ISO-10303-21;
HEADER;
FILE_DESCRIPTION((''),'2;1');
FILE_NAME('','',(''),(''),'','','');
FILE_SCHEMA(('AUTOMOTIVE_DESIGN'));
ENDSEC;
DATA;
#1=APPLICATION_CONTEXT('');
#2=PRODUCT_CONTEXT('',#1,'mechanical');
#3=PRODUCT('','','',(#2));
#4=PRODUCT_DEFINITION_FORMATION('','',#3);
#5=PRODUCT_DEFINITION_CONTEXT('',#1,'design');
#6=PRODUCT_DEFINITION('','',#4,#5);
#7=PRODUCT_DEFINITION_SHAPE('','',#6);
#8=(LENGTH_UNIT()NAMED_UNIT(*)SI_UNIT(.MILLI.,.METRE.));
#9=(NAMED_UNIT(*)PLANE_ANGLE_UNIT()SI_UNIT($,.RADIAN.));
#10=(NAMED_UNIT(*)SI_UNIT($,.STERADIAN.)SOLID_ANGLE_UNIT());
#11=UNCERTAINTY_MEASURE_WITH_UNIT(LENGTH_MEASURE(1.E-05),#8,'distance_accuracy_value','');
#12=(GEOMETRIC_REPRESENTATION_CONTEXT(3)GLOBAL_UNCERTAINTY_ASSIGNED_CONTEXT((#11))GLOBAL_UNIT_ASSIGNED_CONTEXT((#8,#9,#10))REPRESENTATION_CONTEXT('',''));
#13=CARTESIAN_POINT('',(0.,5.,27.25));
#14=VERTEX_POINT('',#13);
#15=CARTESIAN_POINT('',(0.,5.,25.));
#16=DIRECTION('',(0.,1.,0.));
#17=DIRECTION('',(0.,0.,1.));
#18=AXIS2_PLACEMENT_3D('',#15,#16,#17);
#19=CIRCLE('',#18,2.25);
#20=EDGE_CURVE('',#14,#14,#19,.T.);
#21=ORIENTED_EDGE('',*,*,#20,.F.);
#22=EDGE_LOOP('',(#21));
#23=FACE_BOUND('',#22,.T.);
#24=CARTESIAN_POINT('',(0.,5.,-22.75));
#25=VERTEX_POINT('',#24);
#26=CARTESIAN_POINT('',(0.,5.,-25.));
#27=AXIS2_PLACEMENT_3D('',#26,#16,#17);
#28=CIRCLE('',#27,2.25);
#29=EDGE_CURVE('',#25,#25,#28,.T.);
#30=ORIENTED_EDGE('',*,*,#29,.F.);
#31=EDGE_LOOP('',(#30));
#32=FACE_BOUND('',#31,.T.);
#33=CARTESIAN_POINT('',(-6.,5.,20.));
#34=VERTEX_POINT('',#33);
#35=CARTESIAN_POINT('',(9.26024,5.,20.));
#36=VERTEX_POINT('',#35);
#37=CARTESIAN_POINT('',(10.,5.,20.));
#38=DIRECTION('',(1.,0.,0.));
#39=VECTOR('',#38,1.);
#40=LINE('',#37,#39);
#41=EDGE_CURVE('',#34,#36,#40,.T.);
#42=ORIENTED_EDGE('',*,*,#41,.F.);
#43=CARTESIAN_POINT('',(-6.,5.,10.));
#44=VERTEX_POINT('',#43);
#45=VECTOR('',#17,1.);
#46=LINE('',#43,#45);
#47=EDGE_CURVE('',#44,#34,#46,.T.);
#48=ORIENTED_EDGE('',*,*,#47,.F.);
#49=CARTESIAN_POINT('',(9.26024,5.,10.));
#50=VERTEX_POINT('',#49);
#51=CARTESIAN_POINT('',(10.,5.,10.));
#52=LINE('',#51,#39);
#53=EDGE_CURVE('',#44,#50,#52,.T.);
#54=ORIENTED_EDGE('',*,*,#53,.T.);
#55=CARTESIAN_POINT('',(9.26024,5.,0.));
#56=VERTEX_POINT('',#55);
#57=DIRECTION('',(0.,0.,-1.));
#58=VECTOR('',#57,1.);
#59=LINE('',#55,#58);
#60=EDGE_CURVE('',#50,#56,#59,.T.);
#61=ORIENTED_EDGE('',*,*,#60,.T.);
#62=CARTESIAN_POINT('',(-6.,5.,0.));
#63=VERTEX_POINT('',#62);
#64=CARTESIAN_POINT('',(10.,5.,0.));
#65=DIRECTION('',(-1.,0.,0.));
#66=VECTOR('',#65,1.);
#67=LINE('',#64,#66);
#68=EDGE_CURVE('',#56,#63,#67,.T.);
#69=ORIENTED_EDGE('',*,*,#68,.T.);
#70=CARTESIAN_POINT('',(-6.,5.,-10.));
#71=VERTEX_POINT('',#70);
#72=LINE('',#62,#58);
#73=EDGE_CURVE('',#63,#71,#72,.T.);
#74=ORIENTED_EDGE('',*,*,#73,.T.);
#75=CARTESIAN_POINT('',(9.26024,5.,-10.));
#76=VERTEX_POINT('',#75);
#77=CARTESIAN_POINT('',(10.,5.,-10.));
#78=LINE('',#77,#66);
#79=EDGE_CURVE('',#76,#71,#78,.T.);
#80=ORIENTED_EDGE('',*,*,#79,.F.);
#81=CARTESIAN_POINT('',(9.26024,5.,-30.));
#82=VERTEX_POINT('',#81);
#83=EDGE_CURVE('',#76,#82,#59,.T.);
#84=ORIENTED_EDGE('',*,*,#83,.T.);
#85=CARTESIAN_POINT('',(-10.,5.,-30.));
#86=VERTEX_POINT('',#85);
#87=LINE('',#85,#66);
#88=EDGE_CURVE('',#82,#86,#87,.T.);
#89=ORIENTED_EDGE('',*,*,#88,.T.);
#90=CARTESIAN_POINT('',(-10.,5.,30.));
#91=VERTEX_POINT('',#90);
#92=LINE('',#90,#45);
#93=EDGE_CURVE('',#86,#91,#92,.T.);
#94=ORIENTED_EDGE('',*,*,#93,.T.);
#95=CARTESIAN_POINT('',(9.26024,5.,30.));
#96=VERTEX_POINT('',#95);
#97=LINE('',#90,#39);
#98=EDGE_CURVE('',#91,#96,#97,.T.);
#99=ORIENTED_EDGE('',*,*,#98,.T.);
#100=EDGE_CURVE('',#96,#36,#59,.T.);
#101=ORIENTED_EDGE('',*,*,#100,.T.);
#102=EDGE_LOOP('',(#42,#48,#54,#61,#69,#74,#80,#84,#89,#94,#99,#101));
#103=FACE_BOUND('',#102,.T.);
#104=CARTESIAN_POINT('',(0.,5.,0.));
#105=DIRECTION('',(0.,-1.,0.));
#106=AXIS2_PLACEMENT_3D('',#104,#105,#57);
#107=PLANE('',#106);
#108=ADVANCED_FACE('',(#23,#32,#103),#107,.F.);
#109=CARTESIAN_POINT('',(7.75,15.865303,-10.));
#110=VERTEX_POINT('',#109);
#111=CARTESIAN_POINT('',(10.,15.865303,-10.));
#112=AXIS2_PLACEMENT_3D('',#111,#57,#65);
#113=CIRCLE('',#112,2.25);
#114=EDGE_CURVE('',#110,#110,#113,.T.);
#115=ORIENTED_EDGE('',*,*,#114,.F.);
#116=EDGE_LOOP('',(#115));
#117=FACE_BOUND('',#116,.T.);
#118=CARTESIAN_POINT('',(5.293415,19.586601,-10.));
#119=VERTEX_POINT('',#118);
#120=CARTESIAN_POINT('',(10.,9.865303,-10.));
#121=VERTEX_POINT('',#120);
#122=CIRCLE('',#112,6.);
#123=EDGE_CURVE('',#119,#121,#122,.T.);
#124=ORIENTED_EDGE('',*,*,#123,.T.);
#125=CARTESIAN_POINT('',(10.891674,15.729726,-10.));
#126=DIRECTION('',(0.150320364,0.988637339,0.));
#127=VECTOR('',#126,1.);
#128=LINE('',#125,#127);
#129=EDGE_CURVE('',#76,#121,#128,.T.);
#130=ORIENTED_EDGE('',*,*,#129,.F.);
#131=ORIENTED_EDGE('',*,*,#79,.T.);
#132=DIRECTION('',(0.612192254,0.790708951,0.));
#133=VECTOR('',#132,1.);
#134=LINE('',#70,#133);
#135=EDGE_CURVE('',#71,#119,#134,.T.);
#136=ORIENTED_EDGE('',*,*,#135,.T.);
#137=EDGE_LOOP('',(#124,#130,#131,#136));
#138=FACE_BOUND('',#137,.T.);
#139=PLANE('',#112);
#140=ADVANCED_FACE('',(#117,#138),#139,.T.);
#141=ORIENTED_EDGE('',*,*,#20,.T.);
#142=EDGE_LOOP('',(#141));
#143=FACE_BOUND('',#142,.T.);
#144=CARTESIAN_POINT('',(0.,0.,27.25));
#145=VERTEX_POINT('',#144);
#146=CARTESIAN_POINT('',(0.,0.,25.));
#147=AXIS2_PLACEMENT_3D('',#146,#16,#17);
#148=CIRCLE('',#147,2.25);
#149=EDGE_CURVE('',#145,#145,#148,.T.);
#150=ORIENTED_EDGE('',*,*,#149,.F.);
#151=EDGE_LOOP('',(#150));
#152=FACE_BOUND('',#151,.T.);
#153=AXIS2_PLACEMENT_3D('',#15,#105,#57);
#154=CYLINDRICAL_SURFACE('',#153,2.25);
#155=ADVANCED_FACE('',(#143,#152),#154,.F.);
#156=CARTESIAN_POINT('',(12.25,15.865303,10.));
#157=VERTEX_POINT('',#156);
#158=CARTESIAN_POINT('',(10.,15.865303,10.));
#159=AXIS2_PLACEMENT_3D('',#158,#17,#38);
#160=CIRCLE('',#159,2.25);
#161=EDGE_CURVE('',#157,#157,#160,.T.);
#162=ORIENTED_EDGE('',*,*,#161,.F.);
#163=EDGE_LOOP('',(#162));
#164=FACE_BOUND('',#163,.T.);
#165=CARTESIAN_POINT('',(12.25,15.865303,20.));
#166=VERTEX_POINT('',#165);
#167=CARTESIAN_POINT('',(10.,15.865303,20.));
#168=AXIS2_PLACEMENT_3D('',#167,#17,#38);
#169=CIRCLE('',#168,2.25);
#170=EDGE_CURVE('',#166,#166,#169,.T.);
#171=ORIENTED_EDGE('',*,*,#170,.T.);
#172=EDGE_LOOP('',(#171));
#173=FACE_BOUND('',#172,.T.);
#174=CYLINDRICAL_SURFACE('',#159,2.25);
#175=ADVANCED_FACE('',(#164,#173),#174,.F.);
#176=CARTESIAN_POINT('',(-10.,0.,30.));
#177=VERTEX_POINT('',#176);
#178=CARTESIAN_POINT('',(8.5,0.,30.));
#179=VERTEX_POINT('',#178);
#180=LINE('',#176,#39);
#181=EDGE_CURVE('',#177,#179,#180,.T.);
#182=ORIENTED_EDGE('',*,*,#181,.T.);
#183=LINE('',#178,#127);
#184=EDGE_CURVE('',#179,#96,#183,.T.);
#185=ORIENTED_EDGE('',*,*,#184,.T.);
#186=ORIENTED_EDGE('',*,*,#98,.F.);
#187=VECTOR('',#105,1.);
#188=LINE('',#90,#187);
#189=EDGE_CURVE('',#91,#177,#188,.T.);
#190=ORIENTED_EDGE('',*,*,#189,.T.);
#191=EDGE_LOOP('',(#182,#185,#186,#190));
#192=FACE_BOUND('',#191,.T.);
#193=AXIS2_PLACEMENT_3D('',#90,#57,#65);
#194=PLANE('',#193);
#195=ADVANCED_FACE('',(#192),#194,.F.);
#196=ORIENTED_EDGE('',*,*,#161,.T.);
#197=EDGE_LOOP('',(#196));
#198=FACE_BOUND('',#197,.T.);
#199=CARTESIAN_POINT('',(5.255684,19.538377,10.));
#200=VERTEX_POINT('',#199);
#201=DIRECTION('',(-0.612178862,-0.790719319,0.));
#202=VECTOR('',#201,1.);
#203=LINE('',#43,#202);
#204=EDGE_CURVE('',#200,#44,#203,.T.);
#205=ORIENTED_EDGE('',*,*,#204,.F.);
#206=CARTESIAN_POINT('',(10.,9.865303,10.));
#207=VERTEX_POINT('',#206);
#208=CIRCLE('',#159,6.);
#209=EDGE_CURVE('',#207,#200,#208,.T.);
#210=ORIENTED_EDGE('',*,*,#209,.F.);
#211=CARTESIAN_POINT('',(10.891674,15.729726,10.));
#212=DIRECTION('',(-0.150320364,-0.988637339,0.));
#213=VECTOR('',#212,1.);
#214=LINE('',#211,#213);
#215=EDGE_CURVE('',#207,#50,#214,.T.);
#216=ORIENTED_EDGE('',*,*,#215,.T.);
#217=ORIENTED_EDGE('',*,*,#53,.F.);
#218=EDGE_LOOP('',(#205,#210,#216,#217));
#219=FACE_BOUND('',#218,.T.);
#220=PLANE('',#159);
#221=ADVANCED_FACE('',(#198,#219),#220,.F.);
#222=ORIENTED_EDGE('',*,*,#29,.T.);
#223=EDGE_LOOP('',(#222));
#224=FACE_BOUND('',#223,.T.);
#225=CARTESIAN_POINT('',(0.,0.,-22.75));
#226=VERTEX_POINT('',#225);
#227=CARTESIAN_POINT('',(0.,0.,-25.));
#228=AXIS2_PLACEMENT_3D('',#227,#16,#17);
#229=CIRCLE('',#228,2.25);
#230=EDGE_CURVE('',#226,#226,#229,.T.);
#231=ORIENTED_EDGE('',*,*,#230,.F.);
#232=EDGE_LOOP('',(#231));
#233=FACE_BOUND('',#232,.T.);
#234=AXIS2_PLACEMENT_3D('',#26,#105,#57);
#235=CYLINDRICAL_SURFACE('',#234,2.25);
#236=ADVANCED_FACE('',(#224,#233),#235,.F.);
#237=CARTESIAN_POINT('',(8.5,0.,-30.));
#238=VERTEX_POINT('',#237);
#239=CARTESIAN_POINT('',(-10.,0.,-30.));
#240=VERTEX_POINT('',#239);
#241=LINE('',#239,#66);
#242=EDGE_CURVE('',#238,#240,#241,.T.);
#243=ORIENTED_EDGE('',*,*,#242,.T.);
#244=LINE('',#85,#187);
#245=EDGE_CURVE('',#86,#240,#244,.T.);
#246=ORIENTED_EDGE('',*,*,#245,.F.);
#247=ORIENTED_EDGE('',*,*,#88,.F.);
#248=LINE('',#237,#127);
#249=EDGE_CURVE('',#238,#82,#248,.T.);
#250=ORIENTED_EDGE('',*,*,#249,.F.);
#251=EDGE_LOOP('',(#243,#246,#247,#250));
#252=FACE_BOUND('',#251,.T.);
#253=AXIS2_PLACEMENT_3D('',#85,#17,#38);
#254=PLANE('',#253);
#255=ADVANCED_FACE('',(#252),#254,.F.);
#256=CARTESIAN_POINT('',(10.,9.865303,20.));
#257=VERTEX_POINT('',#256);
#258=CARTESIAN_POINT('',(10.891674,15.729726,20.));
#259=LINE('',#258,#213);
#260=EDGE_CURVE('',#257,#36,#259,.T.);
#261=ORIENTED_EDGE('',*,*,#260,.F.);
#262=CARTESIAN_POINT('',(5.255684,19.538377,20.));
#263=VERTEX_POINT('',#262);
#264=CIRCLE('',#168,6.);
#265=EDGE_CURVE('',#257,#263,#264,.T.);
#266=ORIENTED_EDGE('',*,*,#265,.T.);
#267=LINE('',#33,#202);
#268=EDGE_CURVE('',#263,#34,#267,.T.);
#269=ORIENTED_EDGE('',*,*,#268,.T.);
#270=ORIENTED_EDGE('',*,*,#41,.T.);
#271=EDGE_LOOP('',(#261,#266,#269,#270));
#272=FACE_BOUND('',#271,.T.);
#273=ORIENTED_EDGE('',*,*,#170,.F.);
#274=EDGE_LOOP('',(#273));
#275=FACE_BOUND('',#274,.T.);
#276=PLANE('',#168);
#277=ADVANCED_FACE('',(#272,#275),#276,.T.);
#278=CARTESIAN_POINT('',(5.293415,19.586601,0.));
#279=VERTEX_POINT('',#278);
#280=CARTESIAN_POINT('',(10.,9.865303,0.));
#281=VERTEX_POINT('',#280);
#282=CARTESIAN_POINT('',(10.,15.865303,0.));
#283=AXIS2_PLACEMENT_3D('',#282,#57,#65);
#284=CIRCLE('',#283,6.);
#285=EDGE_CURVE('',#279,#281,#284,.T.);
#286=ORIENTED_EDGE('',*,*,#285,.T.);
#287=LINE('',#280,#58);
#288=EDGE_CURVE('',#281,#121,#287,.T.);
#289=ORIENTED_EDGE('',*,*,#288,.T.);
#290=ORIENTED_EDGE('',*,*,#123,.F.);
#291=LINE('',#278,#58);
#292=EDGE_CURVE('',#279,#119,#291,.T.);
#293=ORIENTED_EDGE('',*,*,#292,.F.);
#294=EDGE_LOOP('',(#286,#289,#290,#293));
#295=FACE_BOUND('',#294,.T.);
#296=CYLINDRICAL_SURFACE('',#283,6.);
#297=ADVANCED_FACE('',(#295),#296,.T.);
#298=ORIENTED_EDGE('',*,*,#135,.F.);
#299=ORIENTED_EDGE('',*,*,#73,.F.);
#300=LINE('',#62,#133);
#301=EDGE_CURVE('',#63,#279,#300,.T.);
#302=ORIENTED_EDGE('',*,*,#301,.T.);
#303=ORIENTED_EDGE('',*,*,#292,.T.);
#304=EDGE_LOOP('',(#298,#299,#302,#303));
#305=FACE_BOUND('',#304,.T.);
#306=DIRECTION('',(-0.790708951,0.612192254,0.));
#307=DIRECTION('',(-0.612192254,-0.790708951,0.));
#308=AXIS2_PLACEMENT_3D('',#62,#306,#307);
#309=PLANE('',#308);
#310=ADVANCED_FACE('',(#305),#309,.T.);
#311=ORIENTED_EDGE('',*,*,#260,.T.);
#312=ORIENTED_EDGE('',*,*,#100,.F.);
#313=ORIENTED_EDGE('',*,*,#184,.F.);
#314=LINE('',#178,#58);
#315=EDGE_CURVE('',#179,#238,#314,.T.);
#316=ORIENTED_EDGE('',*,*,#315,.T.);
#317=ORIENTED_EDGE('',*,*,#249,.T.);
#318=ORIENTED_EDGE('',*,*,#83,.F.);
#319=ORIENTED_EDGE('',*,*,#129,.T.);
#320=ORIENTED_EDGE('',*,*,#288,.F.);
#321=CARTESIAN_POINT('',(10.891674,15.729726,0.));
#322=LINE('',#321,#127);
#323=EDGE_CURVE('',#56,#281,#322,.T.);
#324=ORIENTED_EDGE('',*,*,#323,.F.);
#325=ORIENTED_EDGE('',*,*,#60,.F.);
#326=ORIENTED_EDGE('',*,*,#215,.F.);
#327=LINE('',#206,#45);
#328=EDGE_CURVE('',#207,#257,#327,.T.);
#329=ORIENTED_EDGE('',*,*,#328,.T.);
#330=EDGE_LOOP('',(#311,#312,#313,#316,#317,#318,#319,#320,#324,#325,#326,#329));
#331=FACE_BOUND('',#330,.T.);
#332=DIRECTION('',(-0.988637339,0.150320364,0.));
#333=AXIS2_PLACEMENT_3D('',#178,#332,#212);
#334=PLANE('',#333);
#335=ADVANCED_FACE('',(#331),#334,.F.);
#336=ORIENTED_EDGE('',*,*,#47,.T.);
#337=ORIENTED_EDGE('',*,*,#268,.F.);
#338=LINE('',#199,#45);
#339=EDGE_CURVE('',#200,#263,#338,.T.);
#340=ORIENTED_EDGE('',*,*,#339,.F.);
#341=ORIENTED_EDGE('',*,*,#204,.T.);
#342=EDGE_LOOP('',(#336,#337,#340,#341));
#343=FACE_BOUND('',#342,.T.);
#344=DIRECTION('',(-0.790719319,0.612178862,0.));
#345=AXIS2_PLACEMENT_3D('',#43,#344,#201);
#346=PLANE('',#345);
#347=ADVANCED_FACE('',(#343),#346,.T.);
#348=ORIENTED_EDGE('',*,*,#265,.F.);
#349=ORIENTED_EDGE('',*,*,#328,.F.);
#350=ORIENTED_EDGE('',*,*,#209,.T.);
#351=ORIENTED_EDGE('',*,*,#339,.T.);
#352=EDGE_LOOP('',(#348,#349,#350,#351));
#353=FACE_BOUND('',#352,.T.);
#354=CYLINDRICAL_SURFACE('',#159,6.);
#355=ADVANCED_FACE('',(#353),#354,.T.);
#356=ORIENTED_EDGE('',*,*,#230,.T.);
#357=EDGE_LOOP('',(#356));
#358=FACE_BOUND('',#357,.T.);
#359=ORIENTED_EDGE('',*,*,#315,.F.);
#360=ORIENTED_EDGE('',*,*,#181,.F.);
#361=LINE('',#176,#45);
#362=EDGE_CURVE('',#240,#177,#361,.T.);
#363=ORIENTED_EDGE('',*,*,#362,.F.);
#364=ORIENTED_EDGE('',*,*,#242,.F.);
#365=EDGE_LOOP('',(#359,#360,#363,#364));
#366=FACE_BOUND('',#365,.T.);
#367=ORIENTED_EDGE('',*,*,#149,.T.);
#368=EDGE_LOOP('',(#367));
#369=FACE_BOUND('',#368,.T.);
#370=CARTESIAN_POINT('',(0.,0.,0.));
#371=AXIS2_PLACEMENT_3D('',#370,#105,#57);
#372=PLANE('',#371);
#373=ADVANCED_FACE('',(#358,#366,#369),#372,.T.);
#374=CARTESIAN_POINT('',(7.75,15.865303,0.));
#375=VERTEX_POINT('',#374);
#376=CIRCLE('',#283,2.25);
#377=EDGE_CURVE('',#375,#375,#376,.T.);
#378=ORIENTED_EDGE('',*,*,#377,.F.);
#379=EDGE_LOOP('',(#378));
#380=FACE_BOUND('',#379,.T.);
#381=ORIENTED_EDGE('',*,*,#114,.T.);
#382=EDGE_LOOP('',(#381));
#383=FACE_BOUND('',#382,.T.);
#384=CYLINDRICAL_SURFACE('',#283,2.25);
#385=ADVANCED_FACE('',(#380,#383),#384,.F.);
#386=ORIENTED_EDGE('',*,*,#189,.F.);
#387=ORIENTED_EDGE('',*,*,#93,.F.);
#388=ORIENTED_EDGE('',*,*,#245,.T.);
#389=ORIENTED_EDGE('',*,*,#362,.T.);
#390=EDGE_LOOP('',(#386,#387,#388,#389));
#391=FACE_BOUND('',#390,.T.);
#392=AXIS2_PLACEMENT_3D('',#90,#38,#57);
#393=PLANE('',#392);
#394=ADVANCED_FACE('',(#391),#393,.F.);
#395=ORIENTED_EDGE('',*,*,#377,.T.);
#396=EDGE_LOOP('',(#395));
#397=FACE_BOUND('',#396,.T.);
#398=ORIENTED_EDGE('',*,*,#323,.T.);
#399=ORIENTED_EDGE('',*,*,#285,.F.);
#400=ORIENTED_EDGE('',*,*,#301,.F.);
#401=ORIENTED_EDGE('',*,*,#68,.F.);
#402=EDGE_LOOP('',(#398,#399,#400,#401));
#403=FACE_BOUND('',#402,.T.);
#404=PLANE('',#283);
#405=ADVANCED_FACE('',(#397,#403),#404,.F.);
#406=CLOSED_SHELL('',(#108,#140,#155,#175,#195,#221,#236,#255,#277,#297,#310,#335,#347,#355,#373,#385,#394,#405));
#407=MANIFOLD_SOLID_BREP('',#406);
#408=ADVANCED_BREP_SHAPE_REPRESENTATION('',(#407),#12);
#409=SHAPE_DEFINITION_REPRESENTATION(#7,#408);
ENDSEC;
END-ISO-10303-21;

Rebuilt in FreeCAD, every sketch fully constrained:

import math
import FreeCAD as App
import Part
import Sketcher

V = App.Vector
Q = App.Units.Quantity

doc = App.newDocument("Part")
params = doc.addObject("Spreadsheet::Sheet", "Params")
for row, (alias, value) in enumerate([
    ("sketch1_diameter", "4.5 mm"),
    ("sketch1_width", "20 mm"),
    ("sketch1_height", "60 mm"),
    ("pad1_length", "5 mm"),
    ("sketch2_radius", "6 mm"),
    ("sketch2_diameter", "4.5 mm"),
    ("sketch2_width", "16 mm"),
    ("pad2_length", "10 mm"),
    ("sketch3_radius", "6 mm"),
    ("sketch3_diameter", "4.5 mm"),
    ("sketch3_width", "16 mm"),
    ("pad3_length", "10 mm"),
    ("sketch4_width", "1.5 mm"),
], start=1):
    params.set(f"A{row}", alias)
    params.set(f"B{row}", "=" + value)
    params.setAlias(f"B{row}", alias)

body = doc.addObject("PartDesign::Body", "Body")

sketch1 = body.newObject("Sketcher::SketchObject", "Sketch")
sketch1.AttachmentSupport = (doc.getObject("XZ_Plane"), [""])
sketch1.MapMode = "FlatFace"
sketch1.addGeometry([
    Part.LineSegment(V(-10, -30, 0), V(-10, 30, 0)),
    Part.LineSegment(V(-10, 30, 0), V(10, 30, 0)),
    Part.LineSegment(V(10, 30, 0), V(10, -30, 0)),
    Part.LineSegment(V(10, -30, 0), V(-10, -30, 0)),
    Part.Circle(V(0, 25, 0), V(0, 0, 1), 2.2),
    Part.Circle(V(0, -25, 0), V(0, 0, 1), 2.2),
], False)
sketch1.addConstraint([
    Sketcher.Constraint("Coincident", 0, 2, 1, 1),
    Sketcher.Constraint("Coincident", 1, 2, 2, 1),
    Sketcher.Constraint("Coincident", 2, 2, 3, 1),
    Sketcher.Constraint("Coincident", 3, 2, 0, 1),
    Sketcher.Constraint("Vertical", 0),
    Sketcher.Constraint("Horizontal", 1),
    Sketcher.Constraint("Vertical", 2),
    Sketcher.Constraint("Horizontal", 3),
    Sketcher.Constraint("Equal", 4, 5),
    Sketcher.Constraint("Symmetric", 4, 3, 5, 3, -1, 1),
    Sketcher.Constraint("Symmetric", 0, 2, 2, 2, -1, 1),
    Sketcher.Constraint("PointOnObject", 4, 3, -2),
    Sketcher.Constraint("Diameter", 4, Q("4.5 mm")),
    Sketcher.Constraint("DistanceX", 1, 1, 1, 2, Q("20 mm")),
    Sketcher.Constraint("DistanceY", 0, 1, 0, 2, Q("60 mm")),
    Sketcher.Constraint("DistanceY", -1, 1, 4, 3, Q("25 mm")),
])
sketch1.setExpression("Constraints[12]", "Params.sketch1_diameter")
sketch1.setExpression("Constraints[13]", "Params.sketch1_width")
sketch1.setExpression("Constraints[14]", "Params.sketch1_height")
pad1 = body.newObject("PartDesign::Pad", "Pad")
pad1.Profile = sketch1
pad1.setExpression("Length", "Params.pad1_length")
pad1.Reversed = True

sketch2 = body.newObject("Sketcher::SketchObject", "Sketch001")
sketch2.AttachmentSupport = (doc.getObject("XY_Plane"), [""])
sketch2.MapMode = "FlatFace"
sketch2.AttachmentOffset = App.Placement(V(0, 0, 20), App.Rotation())
sketch2.addGeometry([
    Part.LineSegment(V(10, 5, 0), V(10, 9.9, 0)),
    Part.ArcOfCircle(Part.Circle(V(10, 15.9, 0), V(0, 0, 1), 6), math.radians(-90), math.radians(142)),
    Part.LineSegment(V(5.3, 19.5, 0), V(-6, 5, 0)),
    Part.LineSegment(V(-6, 5, 0), V(10, 5, 0)),
    Part.Circle(V(10, 15.9, 0), V(0, 0, 1), 2.2),
], False)
sketch2.addConstraint([
    Sketcher.Constraint("Coincident", 0, 2, 1, 1),
    Sketcher.Constraint("Tangent", 1, 2, 2, 1),
    Sketcher.Constraint("Coincident", 2, 2, 3, 1),
    Sketcher.Constraint("Coincident", 3, 2, 0, 1),
    Sketcher.Constraint("Vertical", 0),
    Sketcher.Constraint("Horizontal", 3),
    Sketcher.Constraint("Coincident", 4, 3, 1, 3),
    Sketcher.Constraint("Vertical", 4, 3, 0, 2),
    Sketcher.Constraint("Radius", 1, Q("6 mm")),
    Sketcher.Constraint("Diameter", 4, Q("4.5 mm")),
    Sketcher.Constraint("DistanceX", 3, 1, 3, 2, Q("16 mm")),
    Sketcher.Constraint("DistanceX", -1, 1, 1, 3, Q("10 mm")),
    Sketcher.Constraint("DistanceY", -1, 1, 2, 2, Q("5 mm")),
    Sketcher.Constraint("DistanceY", 0, 1, 0, 2, Q("4.865303 mm")),
])
sketch2.setExpression("Constraints[8]", "Params.sketch2_radius")
sketch2.setExpression("Constraints[9]", "Params.sketch2_diameter")
sketch2.setExpression("Constraints[10]", "Params.sketch2_width")
pad2 = body.newObject("PartDesign::Pad", "Pad001")
pad2.Profile = sketch2
pad2.setExpression("Length", "Params.pad2_length")
pad2.Reversed = True

sketch3 = body.newObject("Sketcher::SketchObject", "Sketch002")
sketch3.AttachmentSupport = (doc.getObject("XY_Plane"), [""])
sketch3.MapMode = "FlatFace"
sketch3.AttachmentOffset = App.Placement(V(0, 0, -10), App.Rotation())
sketch3.addGeometry([
    Part.LineSegment(V(10, 9.9, 0), V(10, 5, 0)),
    Part.LineSegment(V(10, 5, 0), V(-6, 5, 0)),
    Part.LineSegment(V(-6, 5, 0), V(5.3, 19.6, 0)),
    Part.ArcOfCircle(Part.Circle(V(10, 15.9, 0), V(0, 0, 1), 6), math.radians(-90), math.radians(142)),
    Part.Circle(V(10, 15.9, 0), V(0, 0, 1), 2.2),
], False)
sketch3.addConstraint([
    Sketcher.Constraint("Coincident", 0, 2, 1, 1),
    Sketcher.Constraint("Coincident", 1, 2, 2, 1),
    Sketcher.Constraint("Coincident", 2, 2, 3, 2),
    Sketcher.Constraint("Coincident", 3, 1, 0, 1),
    Sketcher.Constraint("Vertical", 0),
    Sketcher.Constraint("Horizontal", 1),
    Sketcher.Constraint("Coincident", 4, 3, 3, 3),
    Sketcher.Constraint("Vertical", 4, 3, 0, 2),
    Sketcher.Constraint("Radius", 3, Q("6 mm")),
    Sketcher.Constraint("Diameter", 4, Q("4.5 mm")),
    Sketcher.Constraint("DistanceX", 1, 2, 1, 1, Q("16 mm")),
    Sketcher.Constraint("DistanceX", -1, 1, 3, 3, Q("10 mm")),
    Sketcher.Constraint("DistanceY", -1, 1, 0, 2, Q("5 mm")),
    Sketcher.Constraint("DistanceY", -1, 1, 2, 2, Q("19.586601 mm")),
    Sketcher.Constraint("DistanceY", 3, 3, 2, 2, Q("3.721298 mm")),
])
sketch3.setExpression("Constraints[8]", "Params.sketch3_radius")
sketch3.setExpression("Constraints[9]", "Params.sketch3_diameter")
sketch3.setExpression("Constraints[10]", "Params.sketch3_width")
pad3 = body.newObject("PartDesign::Pad", "Pad002")
pad3.Profile = sketch3
pad3.setExpression("Length", "Params.pad3_length")

sketch4 = body.newObject("Sketcher::SketchObject", "Sketch003")
sketch4.AttachmentSupport = (doc.getObject("XY_Plane"), [""])
sketch4.MapMode = "FlatFace"
sketch4.AttachmentOffset = App.Placement(V(0, 0, -30), App.Rotation())
sketch4.addGeometry([
    Part.LineSegment(V(10, 9.9, 0), V(10, 0, 0)),
    Part.LineSegment(V(10, 0, 0), V(8.5, 0, 0)),
    Part.LineSegment(V(8.5, 0, 0), V(10, 9.9, 0)),
], False)
sketch4.addConstraint([
    Sketcher.Constraint("Coincident", 0, 2, 1, 1),
    Sketcher.Constraint("Coincident", 1, 2, 2, 1),
    Sketcher.Constraint("Coincident", 2, 2, 0, 1),
    Sketcher.Constraint("Vertical", 0),
    Sketcher.Constraint("Horizontal", 1),
    Sketcher.Constraint("PointOnObject", 0, 2, -1),
    Sketcher.Constraint("DistanceX", 1, 2, 1, 1, Q("1.5 mm")),
    Sketcher.Constraint("DistanceX", -1, 1, 0, 2, Q("10 mm")),
    Sketcher.Constraint("DistanceY", 0, 2, 0, 1, Q("9.865303 mm")),
])
sketch4.setExpression("Constraints[6]", "Params.sketch4_width")
pocket1 = body.newObject("PartDesign::Pocket", "Pocket")
pocket1.Profile = sketch4
pocket1.Type = "ThroughAll"
pocket1.Reversed = True

doc.recompute()
